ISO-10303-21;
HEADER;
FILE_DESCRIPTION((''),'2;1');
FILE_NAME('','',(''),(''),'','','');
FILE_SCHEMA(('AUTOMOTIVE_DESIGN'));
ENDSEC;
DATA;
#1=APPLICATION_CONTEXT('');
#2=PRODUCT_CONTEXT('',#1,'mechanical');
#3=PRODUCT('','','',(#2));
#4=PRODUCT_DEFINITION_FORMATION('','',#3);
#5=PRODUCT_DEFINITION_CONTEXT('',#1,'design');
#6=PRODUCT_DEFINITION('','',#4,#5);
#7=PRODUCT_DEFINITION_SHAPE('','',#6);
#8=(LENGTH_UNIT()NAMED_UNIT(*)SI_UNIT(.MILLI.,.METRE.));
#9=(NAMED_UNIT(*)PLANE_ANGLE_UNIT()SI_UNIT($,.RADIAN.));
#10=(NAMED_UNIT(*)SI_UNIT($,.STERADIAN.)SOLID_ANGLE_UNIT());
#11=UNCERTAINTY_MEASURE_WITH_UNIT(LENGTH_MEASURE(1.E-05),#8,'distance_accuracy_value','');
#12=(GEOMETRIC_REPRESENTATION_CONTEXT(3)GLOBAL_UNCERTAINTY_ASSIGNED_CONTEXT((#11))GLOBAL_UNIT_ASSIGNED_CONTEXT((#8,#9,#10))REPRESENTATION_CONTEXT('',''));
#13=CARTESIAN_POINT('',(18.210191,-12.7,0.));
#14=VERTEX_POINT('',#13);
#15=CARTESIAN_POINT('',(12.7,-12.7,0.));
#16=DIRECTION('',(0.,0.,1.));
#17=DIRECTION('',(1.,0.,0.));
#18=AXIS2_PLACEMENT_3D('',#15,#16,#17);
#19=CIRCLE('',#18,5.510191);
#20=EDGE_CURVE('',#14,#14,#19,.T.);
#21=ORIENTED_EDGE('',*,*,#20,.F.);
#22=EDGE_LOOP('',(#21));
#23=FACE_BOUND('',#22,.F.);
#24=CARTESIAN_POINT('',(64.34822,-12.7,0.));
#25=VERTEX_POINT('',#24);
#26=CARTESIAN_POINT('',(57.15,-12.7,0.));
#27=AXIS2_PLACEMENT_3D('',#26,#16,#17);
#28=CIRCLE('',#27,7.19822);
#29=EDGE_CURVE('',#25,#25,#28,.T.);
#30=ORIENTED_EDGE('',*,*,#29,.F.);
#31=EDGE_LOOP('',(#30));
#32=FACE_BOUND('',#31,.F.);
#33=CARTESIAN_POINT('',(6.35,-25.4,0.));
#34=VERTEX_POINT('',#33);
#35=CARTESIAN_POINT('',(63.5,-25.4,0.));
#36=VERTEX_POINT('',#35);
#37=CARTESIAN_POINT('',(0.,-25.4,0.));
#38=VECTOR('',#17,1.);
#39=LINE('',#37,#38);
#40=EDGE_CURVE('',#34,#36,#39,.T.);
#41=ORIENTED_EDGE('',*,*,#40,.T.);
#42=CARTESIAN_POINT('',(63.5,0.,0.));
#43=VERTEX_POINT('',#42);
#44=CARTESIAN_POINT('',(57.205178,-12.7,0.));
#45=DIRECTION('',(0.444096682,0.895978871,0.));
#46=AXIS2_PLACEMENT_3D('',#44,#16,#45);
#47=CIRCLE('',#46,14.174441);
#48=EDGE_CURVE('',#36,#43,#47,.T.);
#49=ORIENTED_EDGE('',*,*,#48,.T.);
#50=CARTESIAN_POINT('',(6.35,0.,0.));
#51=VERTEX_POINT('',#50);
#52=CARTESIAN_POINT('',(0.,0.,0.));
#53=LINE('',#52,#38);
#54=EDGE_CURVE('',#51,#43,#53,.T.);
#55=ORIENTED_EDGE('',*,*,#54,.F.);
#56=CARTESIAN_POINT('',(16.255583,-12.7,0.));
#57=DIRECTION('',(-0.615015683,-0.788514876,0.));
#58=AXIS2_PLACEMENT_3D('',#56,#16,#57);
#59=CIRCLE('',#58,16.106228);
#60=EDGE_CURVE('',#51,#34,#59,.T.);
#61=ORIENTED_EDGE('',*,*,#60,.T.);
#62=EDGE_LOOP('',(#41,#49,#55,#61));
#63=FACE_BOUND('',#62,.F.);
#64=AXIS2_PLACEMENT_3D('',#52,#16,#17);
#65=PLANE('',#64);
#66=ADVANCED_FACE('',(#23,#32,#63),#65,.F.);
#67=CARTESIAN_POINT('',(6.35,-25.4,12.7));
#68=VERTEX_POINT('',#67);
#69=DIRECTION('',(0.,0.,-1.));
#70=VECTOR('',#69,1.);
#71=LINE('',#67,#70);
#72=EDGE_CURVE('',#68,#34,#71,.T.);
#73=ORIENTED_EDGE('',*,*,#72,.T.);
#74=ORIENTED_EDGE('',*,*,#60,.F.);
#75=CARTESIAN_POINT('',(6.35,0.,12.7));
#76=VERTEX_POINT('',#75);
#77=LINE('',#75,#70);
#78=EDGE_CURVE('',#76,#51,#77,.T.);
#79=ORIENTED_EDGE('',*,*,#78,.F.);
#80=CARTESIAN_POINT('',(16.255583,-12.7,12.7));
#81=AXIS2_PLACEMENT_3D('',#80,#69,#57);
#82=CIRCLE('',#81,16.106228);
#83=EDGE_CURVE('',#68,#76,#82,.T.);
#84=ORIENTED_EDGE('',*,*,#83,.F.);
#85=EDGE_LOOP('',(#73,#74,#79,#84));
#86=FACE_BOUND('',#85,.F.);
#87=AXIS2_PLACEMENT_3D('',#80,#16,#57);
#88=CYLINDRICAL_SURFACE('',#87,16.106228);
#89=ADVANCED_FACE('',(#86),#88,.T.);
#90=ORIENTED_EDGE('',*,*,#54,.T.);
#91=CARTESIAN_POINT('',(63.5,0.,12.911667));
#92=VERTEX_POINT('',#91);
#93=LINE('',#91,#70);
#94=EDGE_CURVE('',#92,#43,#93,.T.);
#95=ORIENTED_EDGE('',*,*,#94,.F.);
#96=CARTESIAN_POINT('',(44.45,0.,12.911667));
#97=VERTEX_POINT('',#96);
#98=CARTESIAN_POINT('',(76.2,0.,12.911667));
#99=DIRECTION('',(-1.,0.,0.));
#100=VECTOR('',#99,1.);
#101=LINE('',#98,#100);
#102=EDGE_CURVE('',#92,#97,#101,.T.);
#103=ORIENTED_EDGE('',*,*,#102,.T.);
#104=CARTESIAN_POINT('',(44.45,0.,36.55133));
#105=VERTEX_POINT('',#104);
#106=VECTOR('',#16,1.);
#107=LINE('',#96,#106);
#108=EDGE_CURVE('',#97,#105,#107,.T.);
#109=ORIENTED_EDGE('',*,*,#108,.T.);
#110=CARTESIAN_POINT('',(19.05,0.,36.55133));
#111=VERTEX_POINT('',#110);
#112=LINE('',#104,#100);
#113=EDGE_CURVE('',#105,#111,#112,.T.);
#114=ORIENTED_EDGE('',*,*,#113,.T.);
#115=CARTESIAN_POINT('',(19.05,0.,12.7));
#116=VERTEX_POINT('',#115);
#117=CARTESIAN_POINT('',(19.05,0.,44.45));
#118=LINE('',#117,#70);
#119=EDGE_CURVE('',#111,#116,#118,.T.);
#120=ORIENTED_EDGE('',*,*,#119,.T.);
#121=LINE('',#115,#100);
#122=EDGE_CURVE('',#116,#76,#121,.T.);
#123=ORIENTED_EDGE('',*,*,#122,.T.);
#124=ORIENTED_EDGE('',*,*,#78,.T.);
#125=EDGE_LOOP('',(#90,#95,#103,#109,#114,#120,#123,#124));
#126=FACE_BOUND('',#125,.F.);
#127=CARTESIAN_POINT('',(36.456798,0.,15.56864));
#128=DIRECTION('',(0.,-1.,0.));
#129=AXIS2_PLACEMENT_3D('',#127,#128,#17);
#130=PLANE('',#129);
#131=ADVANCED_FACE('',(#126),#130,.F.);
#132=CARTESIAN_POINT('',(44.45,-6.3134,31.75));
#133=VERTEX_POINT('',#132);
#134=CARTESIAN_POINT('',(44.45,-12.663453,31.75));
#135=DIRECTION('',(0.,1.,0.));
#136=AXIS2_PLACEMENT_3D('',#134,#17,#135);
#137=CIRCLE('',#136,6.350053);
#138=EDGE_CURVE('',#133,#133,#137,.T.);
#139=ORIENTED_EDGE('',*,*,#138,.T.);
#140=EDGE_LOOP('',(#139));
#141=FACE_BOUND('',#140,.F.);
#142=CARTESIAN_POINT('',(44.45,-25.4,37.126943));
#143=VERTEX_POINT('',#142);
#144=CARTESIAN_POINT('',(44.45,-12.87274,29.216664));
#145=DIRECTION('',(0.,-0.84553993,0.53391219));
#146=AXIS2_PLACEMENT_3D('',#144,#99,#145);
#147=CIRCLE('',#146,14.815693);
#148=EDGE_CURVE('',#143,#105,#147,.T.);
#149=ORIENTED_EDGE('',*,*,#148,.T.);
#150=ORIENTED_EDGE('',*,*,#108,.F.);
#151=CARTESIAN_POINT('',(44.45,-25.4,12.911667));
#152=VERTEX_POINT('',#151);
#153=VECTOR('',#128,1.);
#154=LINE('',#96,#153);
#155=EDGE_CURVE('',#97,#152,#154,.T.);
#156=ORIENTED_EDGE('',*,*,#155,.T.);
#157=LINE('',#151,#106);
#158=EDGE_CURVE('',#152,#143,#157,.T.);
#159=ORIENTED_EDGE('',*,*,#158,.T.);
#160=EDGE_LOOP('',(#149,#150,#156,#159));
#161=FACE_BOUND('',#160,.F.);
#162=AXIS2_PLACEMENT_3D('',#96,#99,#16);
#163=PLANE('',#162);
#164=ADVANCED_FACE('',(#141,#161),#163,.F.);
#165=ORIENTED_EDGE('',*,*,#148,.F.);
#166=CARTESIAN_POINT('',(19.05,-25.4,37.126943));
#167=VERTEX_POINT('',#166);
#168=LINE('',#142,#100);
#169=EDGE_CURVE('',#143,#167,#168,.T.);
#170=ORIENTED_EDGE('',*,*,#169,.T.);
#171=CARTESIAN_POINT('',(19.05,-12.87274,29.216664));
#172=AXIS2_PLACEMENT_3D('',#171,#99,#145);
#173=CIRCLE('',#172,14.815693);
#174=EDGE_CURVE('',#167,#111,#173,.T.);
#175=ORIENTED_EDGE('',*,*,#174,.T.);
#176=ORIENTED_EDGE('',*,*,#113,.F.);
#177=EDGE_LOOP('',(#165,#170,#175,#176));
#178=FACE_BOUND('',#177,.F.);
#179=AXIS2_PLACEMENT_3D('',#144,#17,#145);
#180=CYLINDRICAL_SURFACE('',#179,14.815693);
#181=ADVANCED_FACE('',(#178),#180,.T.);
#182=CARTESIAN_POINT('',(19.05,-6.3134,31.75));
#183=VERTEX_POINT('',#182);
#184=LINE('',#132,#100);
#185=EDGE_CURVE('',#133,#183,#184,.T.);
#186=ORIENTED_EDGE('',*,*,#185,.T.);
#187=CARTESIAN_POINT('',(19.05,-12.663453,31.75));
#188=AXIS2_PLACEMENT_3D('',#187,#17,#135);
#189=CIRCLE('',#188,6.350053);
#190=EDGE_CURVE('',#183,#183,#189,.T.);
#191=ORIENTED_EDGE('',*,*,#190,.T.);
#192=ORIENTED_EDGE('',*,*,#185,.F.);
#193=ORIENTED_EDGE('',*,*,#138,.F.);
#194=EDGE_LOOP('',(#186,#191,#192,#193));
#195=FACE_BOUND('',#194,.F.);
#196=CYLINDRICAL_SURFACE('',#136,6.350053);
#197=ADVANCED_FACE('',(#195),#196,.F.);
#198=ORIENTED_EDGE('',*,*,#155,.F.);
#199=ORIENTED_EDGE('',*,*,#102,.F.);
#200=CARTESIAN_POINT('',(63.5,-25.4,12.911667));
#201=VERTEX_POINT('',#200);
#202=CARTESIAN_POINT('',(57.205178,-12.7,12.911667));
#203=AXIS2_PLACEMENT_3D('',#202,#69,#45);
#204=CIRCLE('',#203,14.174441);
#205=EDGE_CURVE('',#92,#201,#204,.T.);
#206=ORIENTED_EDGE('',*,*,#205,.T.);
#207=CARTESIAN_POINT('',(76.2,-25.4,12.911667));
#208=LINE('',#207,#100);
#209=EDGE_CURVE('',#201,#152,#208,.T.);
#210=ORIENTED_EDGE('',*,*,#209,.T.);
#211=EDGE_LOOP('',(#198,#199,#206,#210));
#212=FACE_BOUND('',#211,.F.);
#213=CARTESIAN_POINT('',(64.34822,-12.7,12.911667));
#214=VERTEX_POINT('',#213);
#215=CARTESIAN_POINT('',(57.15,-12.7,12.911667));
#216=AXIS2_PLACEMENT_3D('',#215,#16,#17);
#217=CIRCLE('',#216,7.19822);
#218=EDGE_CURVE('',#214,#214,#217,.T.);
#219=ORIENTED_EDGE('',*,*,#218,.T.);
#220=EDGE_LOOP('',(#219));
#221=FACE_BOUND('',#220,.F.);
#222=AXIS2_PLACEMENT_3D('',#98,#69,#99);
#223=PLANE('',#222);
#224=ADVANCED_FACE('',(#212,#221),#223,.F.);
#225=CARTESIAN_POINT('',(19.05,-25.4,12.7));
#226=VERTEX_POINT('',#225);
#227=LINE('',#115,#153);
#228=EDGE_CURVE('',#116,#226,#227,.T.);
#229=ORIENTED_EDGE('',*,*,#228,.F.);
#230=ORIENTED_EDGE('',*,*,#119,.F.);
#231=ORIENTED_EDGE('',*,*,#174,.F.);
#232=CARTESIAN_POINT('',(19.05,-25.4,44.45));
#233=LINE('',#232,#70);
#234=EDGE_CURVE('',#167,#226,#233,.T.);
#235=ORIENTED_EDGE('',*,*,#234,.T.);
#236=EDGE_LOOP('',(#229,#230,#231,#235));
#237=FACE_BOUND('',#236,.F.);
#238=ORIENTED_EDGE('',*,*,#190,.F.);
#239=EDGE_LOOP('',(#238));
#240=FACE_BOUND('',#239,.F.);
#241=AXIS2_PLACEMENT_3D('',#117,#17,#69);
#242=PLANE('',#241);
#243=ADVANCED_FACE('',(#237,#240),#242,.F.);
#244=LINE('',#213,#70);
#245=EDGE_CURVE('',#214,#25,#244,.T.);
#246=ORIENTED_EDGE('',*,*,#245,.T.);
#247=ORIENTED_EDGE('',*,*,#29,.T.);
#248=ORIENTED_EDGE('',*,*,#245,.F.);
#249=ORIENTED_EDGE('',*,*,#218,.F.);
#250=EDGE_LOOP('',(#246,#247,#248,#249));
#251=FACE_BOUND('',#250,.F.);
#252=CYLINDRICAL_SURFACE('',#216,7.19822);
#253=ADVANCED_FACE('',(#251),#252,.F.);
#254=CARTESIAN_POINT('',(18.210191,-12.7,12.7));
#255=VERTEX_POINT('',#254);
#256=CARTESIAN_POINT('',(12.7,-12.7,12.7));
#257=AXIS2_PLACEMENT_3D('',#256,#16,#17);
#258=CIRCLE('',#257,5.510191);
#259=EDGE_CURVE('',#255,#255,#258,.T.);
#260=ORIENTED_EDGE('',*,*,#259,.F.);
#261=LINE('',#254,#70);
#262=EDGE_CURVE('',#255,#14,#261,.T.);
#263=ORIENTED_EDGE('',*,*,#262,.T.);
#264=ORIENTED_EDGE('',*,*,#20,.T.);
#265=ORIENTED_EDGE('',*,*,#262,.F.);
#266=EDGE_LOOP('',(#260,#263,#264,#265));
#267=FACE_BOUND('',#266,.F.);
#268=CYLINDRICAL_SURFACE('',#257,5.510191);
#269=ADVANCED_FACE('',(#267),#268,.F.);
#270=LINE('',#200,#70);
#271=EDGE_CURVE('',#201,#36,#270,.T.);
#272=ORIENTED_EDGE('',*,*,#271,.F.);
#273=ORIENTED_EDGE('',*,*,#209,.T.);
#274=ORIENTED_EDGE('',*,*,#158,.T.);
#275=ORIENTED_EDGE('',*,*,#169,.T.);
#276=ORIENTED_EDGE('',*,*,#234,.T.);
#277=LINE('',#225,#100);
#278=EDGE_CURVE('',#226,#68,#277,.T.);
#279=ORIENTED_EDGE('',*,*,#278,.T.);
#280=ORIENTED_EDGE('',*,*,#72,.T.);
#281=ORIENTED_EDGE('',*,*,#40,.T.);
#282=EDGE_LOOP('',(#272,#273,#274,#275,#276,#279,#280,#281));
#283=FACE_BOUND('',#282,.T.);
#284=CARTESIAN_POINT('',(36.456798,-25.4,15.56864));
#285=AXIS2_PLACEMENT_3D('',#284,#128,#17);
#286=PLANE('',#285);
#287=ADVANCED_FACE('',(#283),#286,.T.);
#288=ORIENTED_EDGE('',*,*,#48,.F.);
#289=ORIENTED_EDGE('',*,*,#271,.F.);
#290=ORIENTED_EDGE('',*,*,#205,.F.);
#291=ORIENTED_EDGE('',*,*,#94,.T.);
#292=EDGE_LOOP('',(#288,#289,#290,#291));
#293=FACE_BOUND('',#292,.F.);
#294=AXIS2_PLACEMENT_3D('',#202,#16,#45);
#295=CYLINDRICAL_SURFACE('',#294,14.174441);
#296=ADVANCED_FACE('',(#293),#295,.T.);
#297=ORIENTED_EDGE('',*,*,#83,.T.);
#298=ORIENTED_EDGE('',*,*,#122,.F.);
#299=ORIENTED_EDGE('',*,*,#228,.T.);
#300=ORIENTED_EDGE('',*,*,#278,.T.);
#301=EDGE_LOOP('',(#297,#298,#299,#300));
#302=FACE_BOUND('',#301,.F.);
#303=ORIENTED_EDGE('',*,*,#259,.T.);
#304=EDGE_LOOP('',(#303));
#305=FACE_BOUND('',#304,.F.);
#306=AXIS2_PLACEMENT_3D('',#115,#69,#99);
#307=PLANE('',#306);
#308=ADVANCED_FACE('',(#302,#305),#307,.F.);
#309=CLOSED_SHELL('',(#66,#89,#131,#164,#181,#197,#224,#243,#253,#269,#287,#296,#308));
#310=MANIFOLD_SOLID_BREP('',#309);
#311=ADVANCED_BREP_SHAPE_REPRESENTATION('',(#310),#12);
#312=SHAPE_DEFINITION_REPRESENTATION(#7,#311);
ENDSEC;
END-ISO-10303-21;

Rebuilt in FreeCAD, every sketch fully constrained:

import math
import FreeCAD as App
import Part
import Sketcher

V = App.Vector
Q = App.Units.Quantity

doc = App.newDocument("Part")
params = doc.addObject("Spreadsheet::Sheet", "Params")
for row, (alias, value) in enumerate([
    ("sketch1_width", "3 in"),
    ("sketch1_width2", "1 in"),
    ("sketch1_height", "0.5 in"),
    ("sketch1_width3", "1.25 in"),
    ("pad1_length", "1 in"),
    ("sketch2_width", "1 in"),
    ("pocket1_length", "1 in"),
    ("sketch3_height", "1 in"),
    ("sketch3_width", "0.5 in"),
    ("pocket2_length", "1 in"),
    ("sketch4_height", "1 in"),
    ("sketch4_width", "0.25 in"),
    ("pocket3_length", "1 in"),
], start=1):
    params.set(f"A{row}", alias)
    params.set(f"B{row}", "=" + value)
    params.setAlias(f"B{row}", alias)

body = doc.addObject("PartDesign::Body", "Body")

# Sketch on XZ plane
sketch1 = body.newObject("Sketcher::SketchObject", "Sketch")
sketch1.AttachmentSupport = (doc.getObject("XZ_Plane"), [""])
sketch1.MapMode = "FlatFace"
sketch1.addGeometry(Part.LineSegment(V(0, 13, 0), V(0, 0, 0)), False)
sketch1.addGeometry(Part.LineSegment(V(0, 0, 0), V(76, 0, 0)), False)
sketch1.addGeometry(Part.LineSegment(V(76, 0, 0), V(76, 13, 0)), False)
sketch1.addGeometry(Part.LineSegment(V(76, 13, 0), V(44, 13, 0)), False)
sketch1.addGeometry(Part.LineSegment(V(44, 13, 0), V(44, 44, 0)), False)
sketch1.addGeometry(Part.LineSegment(V(44, 44, 0), V(19, 44, 0)), False)
sketch1.addGeometry(Part.LineSegment(V(19, 44, 0), V(19, 13, 0)), False)
sketch1.addGeometry(Part.LineSegment(V(19, 13, 0), V(0, 13, 0)), False)
sketch1.addConstraint(Sketcher.Constraint("Coincident", 0, 2, 1, 1))
sketch1.addConstraint(Sketcher.Constraint("Coincident", 1, 2, 2, 1))
sketch1.addConstraint(Sketcher.Constraint("Coincident", 2, 2, 3, 1))
sketch1.addConstraint(Sketcher.Constraint("Coincident", 3, 2, 4, 1))
sketch1.addConstraint(Sketcher.Constraint("Coincident", 4, 2, 5, 1))
sketch1.addConstraint(Sketcher.Constraint("Coincident", 5, 2, 6, 1))
sketch1.addConstraint(Sketcher.Constraint("Coincident", 6, 2, 7, 1))
sketch1.addConstraint(Sketcher.Constraint("Coincident", 7, 2, 0, 1))
sketch1.addConstraint(Sketcher.Constraint("Vertical", 0))
sketch1.addConstraint(Sketcher.Constraint("Horizontal", 1))
sketch1.addConstraint(Sketcher.Constraint("Vertical", 2))
sketch1.addConstraint(Sketcher.Constraint("Horizontal", 3))
sketch1.addConstraint(Sketcher.Constraint("Vertical", 4))
sketch1.addConstraint(Sketcher.Constraint("Horizontal", 5))
sketch1.addConstraint(Sketcher.Constraint("Vertical", 6))
sketch1.addConstraint(Sketcher.Constraint("Horizontal", 7))
sketch1.addConstraint(Sketcher.Constraint("Coincident", 0, 2, -1, 1))
sketch1.addConstraint(Sketcher.Constraint("Equal", 3, 6))
sketch1.addConstraint(Sketcher.Constraint("DistanceX", 1, 1, 1, 2, Q("3 in")))
sketch1.addConstraint(Sketcher.Constraint("DistanceX", 5, 2, 5, 1, Q("1 in")))
sketch1.addConstraint(Sketcher.Constraint("DistanceY", 0, 2, 0, 1, Q("0.5 in")))
sketch1.addConstraint(Sketcher.Constraint("DistanceX", 3, 2, 3, 1, Q("1.25 in")))
sketch1.addConstraint(Sketcher.Constraint("DistanceY", 2, 1, 2, 2, Q("12.911667 mm")))
sketch1.setExpression("Constraints[18]", "Params.sketch1_width")
sketch1.setExpression("Constraints[19]", "Params.sketch1_width2")
sketch1.setExpression("Constraints[20]", "Params.sketch1_height")
sketch1.setExpression("Constraints[21]", "Params.sketch1_width3")
pad1 = body.newObject("PartDesign::Pad", "Pad")
pad1.Profile = sketch1
pad1.setExpression("Length", "Params.pad1_length")

# Sketch on YZ plane
sketch2 = body.newObject("Sketcher::SketchObject", "Sketch001")
sketch2.AttachmentSupport = (doc.getObject("YZ_Plane"), [""])
sketch2.MapMode = "FlatFace"
sketch2.AttachmentOffset = App.Placement(V(0, 0, 1.75 * 25.4), App.Rotation())
sketch2.addGeometry(Part.ArcOfCircle(Part.Circle(V(-13, 29, 0), V(0, 0, 1), 15), math.radians(30), math.radians(148)), False)
sketch2.addGeometry(Part.LineSegment(V(0, 37, 0), V(0, 44, 0)), False)
sketch2.addGeometry(Part.LineSegment(V(0, 44, 0), V(-25, 44, 0)), False)
sketch2.addGeometry(Part.LineSegment(V(-25, 44, 0), V(-25, 37, 0)), False)
sketch2.addGeometry(Part.Circle(V(-13, 32, 0), V(0, 0, 1), 6), False)
sketch2.addConstraint(Sketcher.Constraint("Coincident", 0, 1, 1, 1))
sketch2.addConstraint(Sketcher.Constraint("Coincident", 1, 2, 2, 1))
sketch2.addConstraint(Sketcher.Constraint("Coincident", 2, 2, 3, 1))
sketch2.addConstraint(Sketcher.Constraint("Coincident", 3, 2, 0, 2))
sketch2.addConstraint(Sketcher.Constraint("Vertical", 1))
sketch2.addConstraint(Sketcher.Constraint("Horizontal", 2))
sketch2.addConstraint(Sketcher.Constraint("Vertical", 3))
sketch2.addConstraint(Sketcher.Constraint("PointOnObject", 0, 1, -2))
sketch2.addConstraint(Sketcher.Constraint("DistanceX", 2, 2, 2, 1, Q("1 in")))
sketch2.addConstraint(Sketcher.Constraint("DistanceY", 4, 3, 1, 2, Q("0.5 in")))
sketch2.addConstraint(Sketcher.Constraint("DistanceY", -1, 1, 4, 3, Q("1.25 in")))
sketch2.addConstraint(Sketcher.Constraint("Diameter", 4, Q("12.700106 mm")))
sketch2.addConstraint(Sketcher.Constraint("Radius", 0, Q("14.815693 mm")))
sketch2.addConstraint(Sketcher.Constraint("DistanceY", 1, 1, 1, 2, Q("7.89867 mm")))
sketch2.addConstraint(Sketcher.Constraint("DistanceY", 3, 2, 3, 1, Q("7.323057 mm")))
sketch2.addConstraint(Sketcher.Constraint("DistanceX", 4, 3, -1, 1, Q("12.663453 mm")))
sketch2.setExpression("Constraints[8]", "Params.sketch2_width")
pocket1 = body.newObject("PartDesign::Pocket", "Pocket")
pocket1.Profile = sketch2
pocket1.setExpression("Length", "Params.pocket1_length")

# Sketch on XY plane
sketch3 = body.newObject("Sketcher::SketchObject", "Sketch002")
sketch3.AttachmentSupport = (doc.getObject("XY_Plane"), [""])
sketch3.MapMode = "FlatFace"
sketch3.AttachmentOffset = App.Placement(V(0, 0, 12.911667), App.Rotation())
sketch3.addGeometry(Part.Circle(V(57, -13, 0), V(0, 0, 1), 7), False)
sketch3.addGeometry(Part.ArcOfCircle(Part.Circle(V(57, -13, 0), V(0, 0, 1), 14), math.radians(-64), math.radians(64)), False)
sketch3.addGeometry(Part.LineSegment(V(64, -25, 0), V(76, -25, 0)), False)
sketch3.addGeometry(Part.LineSegment(V(76, -25, 0), V(76, 0, 0)), False)
sketch3.addGeometry(Part.LineSegment(V(76, 0, 0), V(64, 0, 0)), False)
sketch3.addConstraint(Sketcher.Constraint("Coincident", 1, 1, 2, 1))
sketch3.addConstraint(Sketcher.Constraint("Coincident", 2, 2, 3, 1))
sketch3.addConstraint(Sketcher.Constraint("Coincident", 3, 2, 4, 1))
sketch3.addConstraint(Sketcher.Constraint("Coincident", 4, 2, 1, 2))
sketch3.addConstraint(Sketcher.Constraint("Horizontal", 2))
sketch3.addConstraint(Sketcher.Constraint("Vertical", 3))
sketch3.addConstraint(Sketcher.Constraint("Horizontal", 4))
sketch3.addConstraint(Sketcher.Constraint("PointOnObject", 3, 2, -1))
sketch3.addConstraint(Sketcher.Constraint("Horizontal", 0, 3, 1, 3))
sketch3.addConstraint(Sketcher.Constraint("Vertical", 1, 1, 4, 2))
sketch3.addConstraint(Sketcher.Constraint("DistanceY", 3, 1, 3, 2, Q("1 in")))
sketch3.addConstraint(Sketcher.Constraint("DistanceX", 2, 1, 2, 2, Q("0.5 in")))
sketch3.addConstraint(Sketcher.Constraint("DistanceX", -1, 1, 2, 2, Q("3 in")))
sketch3.addConstraint(Sketcher.Constraint("DistanceX", -1, 1, 0, 3, Q("2.25 in")))
sketch3.addConstraint(Sketcher.Constraint("Diameter", 0, Q("14.39644 mm")))
sketch3.addConstraint(Sketcher.Constraint("Radius", 1, Q("14.174441 mm")))
sketch3.setExpression("Constraints[10]", "Params.sketch3_height")
sketch3.setExpression("Constraints[11]", "Params.sketch3_width")
pocket2 = body.newObject("PartDesign::Pocket", "Pocket001")
pocket2.Profile = sketch3
pocket2.setExpression("Length", "Params.pocket2_length")

# Sketch on XY plane
sketch4 = body.newObject("Sketcher::SketchObject", "Sketch003")
sketch4.AttachmentSupport = (doc.getObject("XY_Plane"), [""])
sketch4.MapMode = "FlatFace"
sketch4.AttachmentOffset = App.Placement(V(0, 0, 0.5 * 25.4), App.Rotation())
sketch4.addGeometry(Part.ArcOfCircle(Part.Circle(V(16, -13, 0), V(0, 0, 1), 16), math.radians(128), math.radians(232)), False)
sketch4.addGeometry(Part.LineSegment(V(6, 0, 0), V(0, 0, 0)), False)
sketch4.addGeometry(Part.LineSegment(V(0, 0, 0), V(0, -25, 0)), False)
sketch4.addGeometry(Part.LineSegment(V(0, -25, 0), V(6, -25, 0)), False)
sketch4.addGeometry(Part.Circle(V(13, -13, 0), V(0, 0, 1), 6), False)
sketch4.addConstraint(Sketcher.Constraint("Coincident", 0, 1, 1, 1))
sketch4.addConstraint(Sketcher.Constraint("Coincident", 1, 2, 2, 1))
sketch4.addConstraint(Sketcher.Constraint("Coincident", 2, 2, 3, 1))
sketch4.addConstraint(Sketcher.Constraint("Coincident", 3, 2, 0, 2))
sketch4.addConstraint(Sketcher.Constraint("Horizontal", 1))
sketch4.addConstraint(Sketcher.Constraint("Vertical", 2))
sketch4.addConstraint(Sketcher.Constraint("Horizontal", 3))
sketch4.addConstraint(Sketcher.Constraint("Coincident", 1, 2, -1, 1))
sketch4.addConstraint(Sketcher.Constraint("Horizontal", 0, 3, 4, 3))
sketch4.addConstraint(Sketcher.Constraint("Vertical", 0, 1, 3, 2))
sketch4.addConstraint(Sketcher.Constraint("DistanceY", 2, 2, 2, 1, Q("1 in")))
sketch4.addConstraint(Sketcher.Constraint("DistanceX", 1, 2, 1, 1, Q("0.25 in")))
sketch4.addConstraint(Sketcher.Constraint("DistanceX", -1, 1, 4, 3, Q("0.5 in")))
sketch4.addConstraint(Sketcher.Constraint("Diameter", 4, Q("11.020382 mm")))
sketch4.addConstraint(Sketcher.Constraint("Radius", 0, Q("16.106228 mm")))
sketch4.setExpression("Constraints[10]", "Params.sketch4_height")
sketch4.setExpression("Constraints[11]", "Params.sketch4_width")
pocket3 = body.newObject("PartDesign::Pocket", "Pocket002")
pocket3.Profile = sketch4
pocket3.setExpression("Length", "Params.pocket3_length")

doc.recompute()
